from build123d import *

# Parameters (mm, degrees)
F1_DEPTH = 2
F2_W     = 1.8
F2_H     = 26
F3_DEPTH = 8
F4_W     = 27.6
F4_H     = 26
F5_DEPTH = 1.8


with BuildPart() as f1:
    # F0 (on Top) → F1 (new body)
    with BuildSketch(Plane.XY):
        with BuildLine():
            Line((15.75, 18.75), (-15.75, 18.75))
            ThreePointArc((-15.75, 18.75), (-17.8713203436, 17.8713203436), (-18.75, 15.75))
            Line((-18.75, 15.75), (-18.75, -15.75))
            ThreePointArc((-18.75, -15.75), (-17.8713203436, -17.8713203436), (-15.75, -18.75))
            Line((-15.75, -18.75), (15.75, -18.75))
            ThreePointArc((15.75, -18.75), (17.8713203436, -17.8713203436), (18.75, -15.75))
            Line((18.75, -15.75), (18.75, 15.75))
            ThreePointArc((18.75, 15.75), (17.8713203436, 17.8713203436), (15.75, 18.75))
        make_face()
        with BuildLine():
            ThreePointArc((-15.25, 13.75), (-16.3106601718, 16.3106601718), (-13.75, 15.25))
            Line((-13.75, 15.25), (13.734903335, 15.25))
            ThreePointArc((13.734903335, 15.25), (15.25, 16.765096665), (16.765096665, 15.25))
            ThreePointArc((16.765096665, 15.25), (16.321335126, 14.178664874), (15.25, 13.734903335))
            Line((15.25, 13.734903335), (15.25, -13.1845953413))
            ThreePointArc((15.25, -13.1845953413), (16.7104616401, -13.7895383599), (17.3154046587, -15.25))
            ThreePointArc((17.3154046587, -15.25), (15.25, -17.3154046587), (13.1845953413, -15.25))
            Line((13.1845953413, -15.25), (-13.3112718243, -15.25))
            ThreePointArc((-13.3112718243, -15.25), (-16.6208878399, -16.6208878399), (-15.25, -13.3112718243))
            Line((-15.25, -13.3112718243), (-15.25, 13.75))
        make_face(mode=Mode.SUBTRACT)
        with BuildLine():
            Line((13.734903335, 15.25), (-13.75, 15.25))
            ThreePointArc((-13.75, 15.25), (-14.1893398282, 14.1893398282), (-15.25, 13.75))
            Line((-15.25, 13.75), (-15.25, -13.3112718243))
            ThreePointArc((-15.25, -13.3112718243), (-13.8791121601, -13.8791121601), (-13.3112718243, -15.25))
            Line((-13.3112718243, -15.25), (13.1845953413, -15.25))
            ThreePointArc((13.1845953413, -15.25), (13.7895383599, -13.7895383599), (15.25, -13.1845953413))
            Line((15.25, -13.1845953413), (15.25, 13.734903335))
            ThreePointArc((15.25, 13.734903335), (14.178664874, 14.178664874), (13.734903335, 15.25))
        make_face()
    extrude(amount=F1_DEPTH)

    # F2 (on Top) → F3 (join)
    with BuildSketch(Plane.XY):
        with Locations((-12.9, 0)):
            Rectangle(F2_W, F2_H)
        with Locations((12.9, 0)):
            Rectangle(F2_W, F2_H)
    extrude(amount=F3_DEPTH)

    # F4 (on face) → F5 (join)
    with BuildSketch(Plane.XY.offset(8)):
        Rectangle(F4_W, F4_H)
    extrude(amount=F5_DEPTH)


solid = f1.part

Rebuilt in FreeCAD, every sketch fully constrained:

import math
import FreeCAD as App
import Part
import Sketcher

doc = App.newDocument("Part")
body = doc.addObject("PartDesign::Body", "Body")

# Sketch on XY plane
sketch1 = doc.addObject("Sketcher::SketchObject", "Sketch")
body.addObject(sketch1)
sketch1.AttachmentSupport = (doc.XY_Plane, [""])
sketch1.MapMode = "FlatFace"
sketch1.addGeometry([
    Part.LineSegment(App.Vector(15.8, 18.8, 0), App.Vector(-15.8, 18.8, 0)),  # 0
    Part.ArcOfCircle(Part.Circle(App.Vector(-15.8, 15.8, 0), App.Vector(0, 0, 1), 3), math.radians(90), math.radians(180)),  # 1
    Part.LineSegment(App.Vector(-18.8, 15.8, 0), App.Vector(-18.8, -15.8, 0)),  # 2
    Part.ArcOfCircle(Part.Circle(App.Vector(-15.8, -15.8, 0), App.Vector(0, 0, 1), 3), math.radians(180), math.radians(270)),  # 3
    Part.LineSegment(App.Vector(-15.8, -18.8, 0), App.Vector(15.8, -18.8, 0)),  # 4
    Part.ArcOfCircle(Part.Circle(App.Vector(15.8, -15.8, 0), App.Vector(0, 0, 1), 3), math.radians(-90), math.radians(0)),  # 5
    Part.LineSegment(App.Vector(18.8, -15.8, 0), App.Vector(18.8, 15.8, 0)),  # 6
    Part.ArcOfCircle(Part.Circle(App.Vector(15.8, 15.8, 0), App.Vector(0, 0, 1), 3), math.radians(0), math.radians(90)),  # 7
    Part.ArcOfCircle(Part.Circle(App.Vector(-15.2, -15.2, 0), App.Vector(0, 0, 1), 1.9), math.radians(90), math.radians(360)),  # 8
    Part.ArcOfCircle(Part.Circle(App.Vector(-15.2, -15.2, 0), App.Vector(0, 0, 1), 1.9), math.radians(0), math.radians(90)),  # 9
    Part.ArcOfCircle(Part.Circle(App.Vector(15.2, -15.2, 0), App.Vector(0, 0, 1), 2.1), math.radians(180), math.radians(360)),  # 10
    Part.ArcOfCircle(Part.Circle(App.Vector(15.2, -15.2, 0), App.Vector(0, 0, 1), 2.1), math.radians(90), math.radians(180)),  # 11
    Part.ArcOfCircle(Part.Circle(App.Vector(15.2, -15.2, 0), App.Vector(0, 0, 1), 2.1), math.radians(0), math.radians(90)),  # 12
    Part.ArcOfCircle(Part.Circle(App.Vector(15.2, 15.2, 0), App.Vector(0, 0, 1), 1.5), math.radians(-90), math.radians(0)),  # 13
    Part.ArcOfCircle(Part.Circle(App.Vector(15.2, 15.2, 0), App.Vector(0, 0, 1), 1.5), math.radians(180), math.radians(270)),  # 14
    Part.ArcOfCircle(Part.Circle(App.Vector(15.2, 15.2, 0), App.Vector(0, 0, 1), 1.5), math.radians(0), math.radians(180)),  # 15
    Part.ArcOfCircle(Part.Circle(App.Vector(-15.2, 15.2, 0), App.Vector(0, 0, 1), 1.5), math.radians(0), math.radians(270)),  # 16
    Part.ArcOfCircle(Part.Circle(App.Vector(-15.2, 15.2, 0), App.Vector(0, 0, 1), 1.5), math.radians(-90), math.radians(0)),  # 17
], False)
sketch1.addConstraint([
    Sketcher.Constraint("Tangent", 0, 2, 1, 1),
    Sketcher.Constraint("Tangent", 1, 2, 2, 1),
    Sketcher.Constraint("Tangent", 2, 2, 3, 1),
    Sketcher.Constraint("Tangent", 3, 2, 4, 1),
    Sketcher.Constraint("Tangent", 4, 2, 5, 1),
    Sketcher.Constraint("Tangent", 5, 2, 6, 1),
    Sketcher.Constraint("Tangent", 6, 2, 7, 1),
    Sketcher.Constraint("Tangent", 7, 2, 0, 1),
    Sketcher.Constraint("Tangent", 8, 1, 9, 2),
    Sketcher.Constraint("Coincident", 9, 1, 8, 2),
    Sketcher.Constraint("Tangent", 10, 1, 11, 2),
    Sketcher.Constraint("Tangent", 11, 1, 12, 2),
    Sketcher.Constraint("Tangent", 12, 1, 10, 2),
    Sketcher.Constraint("Tangent", 13, 1, 14, 2),
    Sketcher.Constraint("Tangent", 14, 1, 15, 2),
    Sketcher.Constraint("Tangent", 15, 1, 13, 2),
    Sketcher.Constraint("Tangent", 16, 1, 17, 2),
    Sketcher.Constraint("Coincident", 17, 1, 16, 2),
    Sketcher.Constraint("Horizontal", 0),
    Sketcher.Constraint("Vertical", 2),
    Sketcher.Constraint("Horizontal", 4),
    Sketcher.Constraint("Vertical", 6),
    Sketcher.Constraint("Equal", 1, 3),
    Sketcher.Constraint("Equal", 3, 5),
    Sketcher.Constraint("Equal", 5, 7),
    Sketcher.Constraint("Symmetric", 1, 3, 5, 3, -1, 1),
    Sketcher.Constraint("Symmetric", 8, 3, 13, 3, -1, 1),
    Sketcher.Constraint("Symmetric", 10, 3, 16, 3, -1, 1),
    Sketcher.Constraint("Symmetric", 8, 3, 10, 3, -2),
    Sketcher.Constraint("Horizontal", 12, 3, 9, 1),
    Sketcher.Constraint("Horizontal", 9, 1, 10, 1),
    Sketcher.Constraint("Horizontal", 10, 1, 12, 1),
    Sketcher.Constraint("Horizontal", 17, 3, 14, 1),
    Sketcher.Constraint("Horizontal", 14, 1, 15, 1),
    Sketcher.Constraint("Horizontal", 15, 1, 16, 1),
    Sketcher.Constraint("Vertical", 17, 3, 8, 1),
    Sketcher.Constraint("Vertical", 15, 3, 11, 1),
    Sketcher.Constraint("Vertical", 11, 1, 13, 1),
    Sketcher.Constraint("Vertical", 8, 1, 17, 1),
    Sketcher.Constraint("Equal", 4, 2),
    Sketcher.Constraint("Radius", 1, 3.0),
    Sketcher.Constraint("Radius", 16, 1.5),
    Sketcher.Constraint("DistanceX", 0, 2, 0, 1, 31.5),
    Sketcher.Constraint("DistanceY", 8, 3, 1, 3, 31.0),
    Sketcher.Constraint("DistanceX", 8, 3, 5, 3, 31.0),
    Sketcher.Constraint("Radius", 8, 1.938728),
    Sketcher.Constraint("Radius", 10, 2.065405),
    Sketcher.Constraint("Radius", 13, 1.515097),
])
pad1 = doc.addObject("PartDesign::Pad", "Pad")
body.addObject(pad1)
pad1.Profile = sketch1
pad1.Length = 2

# Sketch on XY plane
sketch2 = doc.addObject("Sketcher::SketchObject", "Sketch001")
body.addObject(sketch2)
sketch2.AttachmentSupport = (doc.XY_Plane, [""])
sketch2.MapMode = "FlatFace"
sketch2.addGeometry([
    Part.LineSegment(App.Vector(-13.8, 13, 0), App.Vector(-13.8, -13, 0)),  # 0
    Part.LineSegment(App.Vector(-13.8, -13, 0), App.Vector(-12, -13, 0)),  # 1
    Part.LineSegment(App.Vector(-12, -13, 0), App.Vector(-12, 13, 0)),  # 2
    Part.LineSegment(App.Vector(-12, 13, 0), App.Vector(-13.8, 13, 0)),  # 3
    Part.LineSegment(App.Vector(12, 13, 0), App.Vector(12, -13, 0)),  # 4
    Part.LineSegment(App.Vector(12, -13, 0), App.Vector(13.8, -13, 0)),  # 5
    Part.LineSegment(App.Vector(13.8, -13, 0), App.Vector(13.8, 13, 0)),  # 6
    Part.LineSegment(App.Vector(13.8, 13, 0), App.Vector(12, 13, 0)),  # 7
], False)
sketch2.addConstraint([
    Sketcher.Constraint("Coincident", 0, 2, 1, 1),
    Sketcher.Constraint("Coincident", 1, 2, 2, 1),
    Sketcher.Constraint("Coincident", 2, 2, 3, 1),
    Sketcher.Constraint("Coincident", 3, 2, 0, 1),
    Sketcher.Constraint("Coincident", 4, 2, 5, 1),
    Sketcher.Constraint("Coincident", 5, 2, 6, 1),
    Sketcher.Constraint("Coincident", 6, 2, 7, 1),
    Sketcher.Constraint("Coincident", 7, 2, 4, 1),
    Sketcher.Constraint("Vertical", 0),
    Sketcher.Constraint("Horizontal", 1),
    Sketcher.Constraint("Vertical", 2),
    Sketcher.Constraint("Horizontal", 3),
    Sketcher.Constraint("Vertical", 4),
    Sketcher.Constraint("Horizontal", 5),
    Sketcher.Constraint("Vertical", 6),
    Sketcher.Constraint("Horizontal", 7),
    Sketcher.Constraint("Symmetric", 2, 2, 4, 2, -1, 1),
    Sketcher.Constraint("Symmetric", 0, 2, 6, 2, -1, 1),
    Sketcher.Constraint("Horizontal", 1, 2, 4, 2),
    Sketcher.Constraint("DistanceY", 0, 2, 0, 1, 26.0),
    Sketcher.Constraint("DistanceX", 1, 1, 1, 2, 1.8),
    Sketcher.Constraint("DistanceX", 1, 2, -1, 1, 12.0),
])
pad2 = doc.addObject("PartDesign::Pad", "Pad001")
body.addObject(pad2)
pad2.Profile = sketch2
pad2.Length = 8

# Sketch on XY plane
sketch3 = doc.addObject("Sketcher::SketchObject", "Sketch002")
body.addObject(sketch3)
sketch3.AttachmentSupport = (doc.XY_Plane, [""])
sketch3.MapMode = "FlatFace"
sketch3.AttachmentOffset = App.Placement(App.Vector(0, 0, 8), App.Rotation())
sketch3.addGeometry([
    Part.LineSegment(App.Vector(-14, 13, 0), App.Vector(-14, -13, 0)),
    Part.LineSegment(App.Vector(-14, -13, 0), App.Vector(14, -13, 0)),
    Part.LineSegment(App.Vector(14, -13, 0), App.Vector(14, 13, 0)),
    Part.LineSegment(App.Vector(14, 13, 0), App.Vector(-14, 13, 0)),
], False)
sketch3.addConstraint([
    Sketcher.Constraint("Coincident", 0, 2, 1, 1),
    Sketcher.Constraint("Coincident", 1, 2, 2, 1),
    Sketcher.Constraint("Coincident", 2, 2, 3, 1),
    Sketcher.Constraint("Coincident", 3, 2, 0, 1),
    Sketcher.Constraint("Vertical", 0),
    Sketcher.Constraint("Horizontal", 1),
    Sketcher.Constraint("Vertical", 2),
    Sketcher.Constraint("Horizontal", 3),
    Sketcher.Constraint("Symmetric", 0, 2, 2, 2, -1, 1),
    Sketcher.Constraint("DistanceY", 0, 2, 0, 1, 26.0),
    Sketcher.Constraint("DistanceX", 1, 1, 1, 2, 27.6),
])
pad3 = doc.addObject("PartDesign::Pad", "Pad002")
body.addObject(pad3)
pad3.Profile = sketch3
pad3.Length = 1.8

doc.recompute()
